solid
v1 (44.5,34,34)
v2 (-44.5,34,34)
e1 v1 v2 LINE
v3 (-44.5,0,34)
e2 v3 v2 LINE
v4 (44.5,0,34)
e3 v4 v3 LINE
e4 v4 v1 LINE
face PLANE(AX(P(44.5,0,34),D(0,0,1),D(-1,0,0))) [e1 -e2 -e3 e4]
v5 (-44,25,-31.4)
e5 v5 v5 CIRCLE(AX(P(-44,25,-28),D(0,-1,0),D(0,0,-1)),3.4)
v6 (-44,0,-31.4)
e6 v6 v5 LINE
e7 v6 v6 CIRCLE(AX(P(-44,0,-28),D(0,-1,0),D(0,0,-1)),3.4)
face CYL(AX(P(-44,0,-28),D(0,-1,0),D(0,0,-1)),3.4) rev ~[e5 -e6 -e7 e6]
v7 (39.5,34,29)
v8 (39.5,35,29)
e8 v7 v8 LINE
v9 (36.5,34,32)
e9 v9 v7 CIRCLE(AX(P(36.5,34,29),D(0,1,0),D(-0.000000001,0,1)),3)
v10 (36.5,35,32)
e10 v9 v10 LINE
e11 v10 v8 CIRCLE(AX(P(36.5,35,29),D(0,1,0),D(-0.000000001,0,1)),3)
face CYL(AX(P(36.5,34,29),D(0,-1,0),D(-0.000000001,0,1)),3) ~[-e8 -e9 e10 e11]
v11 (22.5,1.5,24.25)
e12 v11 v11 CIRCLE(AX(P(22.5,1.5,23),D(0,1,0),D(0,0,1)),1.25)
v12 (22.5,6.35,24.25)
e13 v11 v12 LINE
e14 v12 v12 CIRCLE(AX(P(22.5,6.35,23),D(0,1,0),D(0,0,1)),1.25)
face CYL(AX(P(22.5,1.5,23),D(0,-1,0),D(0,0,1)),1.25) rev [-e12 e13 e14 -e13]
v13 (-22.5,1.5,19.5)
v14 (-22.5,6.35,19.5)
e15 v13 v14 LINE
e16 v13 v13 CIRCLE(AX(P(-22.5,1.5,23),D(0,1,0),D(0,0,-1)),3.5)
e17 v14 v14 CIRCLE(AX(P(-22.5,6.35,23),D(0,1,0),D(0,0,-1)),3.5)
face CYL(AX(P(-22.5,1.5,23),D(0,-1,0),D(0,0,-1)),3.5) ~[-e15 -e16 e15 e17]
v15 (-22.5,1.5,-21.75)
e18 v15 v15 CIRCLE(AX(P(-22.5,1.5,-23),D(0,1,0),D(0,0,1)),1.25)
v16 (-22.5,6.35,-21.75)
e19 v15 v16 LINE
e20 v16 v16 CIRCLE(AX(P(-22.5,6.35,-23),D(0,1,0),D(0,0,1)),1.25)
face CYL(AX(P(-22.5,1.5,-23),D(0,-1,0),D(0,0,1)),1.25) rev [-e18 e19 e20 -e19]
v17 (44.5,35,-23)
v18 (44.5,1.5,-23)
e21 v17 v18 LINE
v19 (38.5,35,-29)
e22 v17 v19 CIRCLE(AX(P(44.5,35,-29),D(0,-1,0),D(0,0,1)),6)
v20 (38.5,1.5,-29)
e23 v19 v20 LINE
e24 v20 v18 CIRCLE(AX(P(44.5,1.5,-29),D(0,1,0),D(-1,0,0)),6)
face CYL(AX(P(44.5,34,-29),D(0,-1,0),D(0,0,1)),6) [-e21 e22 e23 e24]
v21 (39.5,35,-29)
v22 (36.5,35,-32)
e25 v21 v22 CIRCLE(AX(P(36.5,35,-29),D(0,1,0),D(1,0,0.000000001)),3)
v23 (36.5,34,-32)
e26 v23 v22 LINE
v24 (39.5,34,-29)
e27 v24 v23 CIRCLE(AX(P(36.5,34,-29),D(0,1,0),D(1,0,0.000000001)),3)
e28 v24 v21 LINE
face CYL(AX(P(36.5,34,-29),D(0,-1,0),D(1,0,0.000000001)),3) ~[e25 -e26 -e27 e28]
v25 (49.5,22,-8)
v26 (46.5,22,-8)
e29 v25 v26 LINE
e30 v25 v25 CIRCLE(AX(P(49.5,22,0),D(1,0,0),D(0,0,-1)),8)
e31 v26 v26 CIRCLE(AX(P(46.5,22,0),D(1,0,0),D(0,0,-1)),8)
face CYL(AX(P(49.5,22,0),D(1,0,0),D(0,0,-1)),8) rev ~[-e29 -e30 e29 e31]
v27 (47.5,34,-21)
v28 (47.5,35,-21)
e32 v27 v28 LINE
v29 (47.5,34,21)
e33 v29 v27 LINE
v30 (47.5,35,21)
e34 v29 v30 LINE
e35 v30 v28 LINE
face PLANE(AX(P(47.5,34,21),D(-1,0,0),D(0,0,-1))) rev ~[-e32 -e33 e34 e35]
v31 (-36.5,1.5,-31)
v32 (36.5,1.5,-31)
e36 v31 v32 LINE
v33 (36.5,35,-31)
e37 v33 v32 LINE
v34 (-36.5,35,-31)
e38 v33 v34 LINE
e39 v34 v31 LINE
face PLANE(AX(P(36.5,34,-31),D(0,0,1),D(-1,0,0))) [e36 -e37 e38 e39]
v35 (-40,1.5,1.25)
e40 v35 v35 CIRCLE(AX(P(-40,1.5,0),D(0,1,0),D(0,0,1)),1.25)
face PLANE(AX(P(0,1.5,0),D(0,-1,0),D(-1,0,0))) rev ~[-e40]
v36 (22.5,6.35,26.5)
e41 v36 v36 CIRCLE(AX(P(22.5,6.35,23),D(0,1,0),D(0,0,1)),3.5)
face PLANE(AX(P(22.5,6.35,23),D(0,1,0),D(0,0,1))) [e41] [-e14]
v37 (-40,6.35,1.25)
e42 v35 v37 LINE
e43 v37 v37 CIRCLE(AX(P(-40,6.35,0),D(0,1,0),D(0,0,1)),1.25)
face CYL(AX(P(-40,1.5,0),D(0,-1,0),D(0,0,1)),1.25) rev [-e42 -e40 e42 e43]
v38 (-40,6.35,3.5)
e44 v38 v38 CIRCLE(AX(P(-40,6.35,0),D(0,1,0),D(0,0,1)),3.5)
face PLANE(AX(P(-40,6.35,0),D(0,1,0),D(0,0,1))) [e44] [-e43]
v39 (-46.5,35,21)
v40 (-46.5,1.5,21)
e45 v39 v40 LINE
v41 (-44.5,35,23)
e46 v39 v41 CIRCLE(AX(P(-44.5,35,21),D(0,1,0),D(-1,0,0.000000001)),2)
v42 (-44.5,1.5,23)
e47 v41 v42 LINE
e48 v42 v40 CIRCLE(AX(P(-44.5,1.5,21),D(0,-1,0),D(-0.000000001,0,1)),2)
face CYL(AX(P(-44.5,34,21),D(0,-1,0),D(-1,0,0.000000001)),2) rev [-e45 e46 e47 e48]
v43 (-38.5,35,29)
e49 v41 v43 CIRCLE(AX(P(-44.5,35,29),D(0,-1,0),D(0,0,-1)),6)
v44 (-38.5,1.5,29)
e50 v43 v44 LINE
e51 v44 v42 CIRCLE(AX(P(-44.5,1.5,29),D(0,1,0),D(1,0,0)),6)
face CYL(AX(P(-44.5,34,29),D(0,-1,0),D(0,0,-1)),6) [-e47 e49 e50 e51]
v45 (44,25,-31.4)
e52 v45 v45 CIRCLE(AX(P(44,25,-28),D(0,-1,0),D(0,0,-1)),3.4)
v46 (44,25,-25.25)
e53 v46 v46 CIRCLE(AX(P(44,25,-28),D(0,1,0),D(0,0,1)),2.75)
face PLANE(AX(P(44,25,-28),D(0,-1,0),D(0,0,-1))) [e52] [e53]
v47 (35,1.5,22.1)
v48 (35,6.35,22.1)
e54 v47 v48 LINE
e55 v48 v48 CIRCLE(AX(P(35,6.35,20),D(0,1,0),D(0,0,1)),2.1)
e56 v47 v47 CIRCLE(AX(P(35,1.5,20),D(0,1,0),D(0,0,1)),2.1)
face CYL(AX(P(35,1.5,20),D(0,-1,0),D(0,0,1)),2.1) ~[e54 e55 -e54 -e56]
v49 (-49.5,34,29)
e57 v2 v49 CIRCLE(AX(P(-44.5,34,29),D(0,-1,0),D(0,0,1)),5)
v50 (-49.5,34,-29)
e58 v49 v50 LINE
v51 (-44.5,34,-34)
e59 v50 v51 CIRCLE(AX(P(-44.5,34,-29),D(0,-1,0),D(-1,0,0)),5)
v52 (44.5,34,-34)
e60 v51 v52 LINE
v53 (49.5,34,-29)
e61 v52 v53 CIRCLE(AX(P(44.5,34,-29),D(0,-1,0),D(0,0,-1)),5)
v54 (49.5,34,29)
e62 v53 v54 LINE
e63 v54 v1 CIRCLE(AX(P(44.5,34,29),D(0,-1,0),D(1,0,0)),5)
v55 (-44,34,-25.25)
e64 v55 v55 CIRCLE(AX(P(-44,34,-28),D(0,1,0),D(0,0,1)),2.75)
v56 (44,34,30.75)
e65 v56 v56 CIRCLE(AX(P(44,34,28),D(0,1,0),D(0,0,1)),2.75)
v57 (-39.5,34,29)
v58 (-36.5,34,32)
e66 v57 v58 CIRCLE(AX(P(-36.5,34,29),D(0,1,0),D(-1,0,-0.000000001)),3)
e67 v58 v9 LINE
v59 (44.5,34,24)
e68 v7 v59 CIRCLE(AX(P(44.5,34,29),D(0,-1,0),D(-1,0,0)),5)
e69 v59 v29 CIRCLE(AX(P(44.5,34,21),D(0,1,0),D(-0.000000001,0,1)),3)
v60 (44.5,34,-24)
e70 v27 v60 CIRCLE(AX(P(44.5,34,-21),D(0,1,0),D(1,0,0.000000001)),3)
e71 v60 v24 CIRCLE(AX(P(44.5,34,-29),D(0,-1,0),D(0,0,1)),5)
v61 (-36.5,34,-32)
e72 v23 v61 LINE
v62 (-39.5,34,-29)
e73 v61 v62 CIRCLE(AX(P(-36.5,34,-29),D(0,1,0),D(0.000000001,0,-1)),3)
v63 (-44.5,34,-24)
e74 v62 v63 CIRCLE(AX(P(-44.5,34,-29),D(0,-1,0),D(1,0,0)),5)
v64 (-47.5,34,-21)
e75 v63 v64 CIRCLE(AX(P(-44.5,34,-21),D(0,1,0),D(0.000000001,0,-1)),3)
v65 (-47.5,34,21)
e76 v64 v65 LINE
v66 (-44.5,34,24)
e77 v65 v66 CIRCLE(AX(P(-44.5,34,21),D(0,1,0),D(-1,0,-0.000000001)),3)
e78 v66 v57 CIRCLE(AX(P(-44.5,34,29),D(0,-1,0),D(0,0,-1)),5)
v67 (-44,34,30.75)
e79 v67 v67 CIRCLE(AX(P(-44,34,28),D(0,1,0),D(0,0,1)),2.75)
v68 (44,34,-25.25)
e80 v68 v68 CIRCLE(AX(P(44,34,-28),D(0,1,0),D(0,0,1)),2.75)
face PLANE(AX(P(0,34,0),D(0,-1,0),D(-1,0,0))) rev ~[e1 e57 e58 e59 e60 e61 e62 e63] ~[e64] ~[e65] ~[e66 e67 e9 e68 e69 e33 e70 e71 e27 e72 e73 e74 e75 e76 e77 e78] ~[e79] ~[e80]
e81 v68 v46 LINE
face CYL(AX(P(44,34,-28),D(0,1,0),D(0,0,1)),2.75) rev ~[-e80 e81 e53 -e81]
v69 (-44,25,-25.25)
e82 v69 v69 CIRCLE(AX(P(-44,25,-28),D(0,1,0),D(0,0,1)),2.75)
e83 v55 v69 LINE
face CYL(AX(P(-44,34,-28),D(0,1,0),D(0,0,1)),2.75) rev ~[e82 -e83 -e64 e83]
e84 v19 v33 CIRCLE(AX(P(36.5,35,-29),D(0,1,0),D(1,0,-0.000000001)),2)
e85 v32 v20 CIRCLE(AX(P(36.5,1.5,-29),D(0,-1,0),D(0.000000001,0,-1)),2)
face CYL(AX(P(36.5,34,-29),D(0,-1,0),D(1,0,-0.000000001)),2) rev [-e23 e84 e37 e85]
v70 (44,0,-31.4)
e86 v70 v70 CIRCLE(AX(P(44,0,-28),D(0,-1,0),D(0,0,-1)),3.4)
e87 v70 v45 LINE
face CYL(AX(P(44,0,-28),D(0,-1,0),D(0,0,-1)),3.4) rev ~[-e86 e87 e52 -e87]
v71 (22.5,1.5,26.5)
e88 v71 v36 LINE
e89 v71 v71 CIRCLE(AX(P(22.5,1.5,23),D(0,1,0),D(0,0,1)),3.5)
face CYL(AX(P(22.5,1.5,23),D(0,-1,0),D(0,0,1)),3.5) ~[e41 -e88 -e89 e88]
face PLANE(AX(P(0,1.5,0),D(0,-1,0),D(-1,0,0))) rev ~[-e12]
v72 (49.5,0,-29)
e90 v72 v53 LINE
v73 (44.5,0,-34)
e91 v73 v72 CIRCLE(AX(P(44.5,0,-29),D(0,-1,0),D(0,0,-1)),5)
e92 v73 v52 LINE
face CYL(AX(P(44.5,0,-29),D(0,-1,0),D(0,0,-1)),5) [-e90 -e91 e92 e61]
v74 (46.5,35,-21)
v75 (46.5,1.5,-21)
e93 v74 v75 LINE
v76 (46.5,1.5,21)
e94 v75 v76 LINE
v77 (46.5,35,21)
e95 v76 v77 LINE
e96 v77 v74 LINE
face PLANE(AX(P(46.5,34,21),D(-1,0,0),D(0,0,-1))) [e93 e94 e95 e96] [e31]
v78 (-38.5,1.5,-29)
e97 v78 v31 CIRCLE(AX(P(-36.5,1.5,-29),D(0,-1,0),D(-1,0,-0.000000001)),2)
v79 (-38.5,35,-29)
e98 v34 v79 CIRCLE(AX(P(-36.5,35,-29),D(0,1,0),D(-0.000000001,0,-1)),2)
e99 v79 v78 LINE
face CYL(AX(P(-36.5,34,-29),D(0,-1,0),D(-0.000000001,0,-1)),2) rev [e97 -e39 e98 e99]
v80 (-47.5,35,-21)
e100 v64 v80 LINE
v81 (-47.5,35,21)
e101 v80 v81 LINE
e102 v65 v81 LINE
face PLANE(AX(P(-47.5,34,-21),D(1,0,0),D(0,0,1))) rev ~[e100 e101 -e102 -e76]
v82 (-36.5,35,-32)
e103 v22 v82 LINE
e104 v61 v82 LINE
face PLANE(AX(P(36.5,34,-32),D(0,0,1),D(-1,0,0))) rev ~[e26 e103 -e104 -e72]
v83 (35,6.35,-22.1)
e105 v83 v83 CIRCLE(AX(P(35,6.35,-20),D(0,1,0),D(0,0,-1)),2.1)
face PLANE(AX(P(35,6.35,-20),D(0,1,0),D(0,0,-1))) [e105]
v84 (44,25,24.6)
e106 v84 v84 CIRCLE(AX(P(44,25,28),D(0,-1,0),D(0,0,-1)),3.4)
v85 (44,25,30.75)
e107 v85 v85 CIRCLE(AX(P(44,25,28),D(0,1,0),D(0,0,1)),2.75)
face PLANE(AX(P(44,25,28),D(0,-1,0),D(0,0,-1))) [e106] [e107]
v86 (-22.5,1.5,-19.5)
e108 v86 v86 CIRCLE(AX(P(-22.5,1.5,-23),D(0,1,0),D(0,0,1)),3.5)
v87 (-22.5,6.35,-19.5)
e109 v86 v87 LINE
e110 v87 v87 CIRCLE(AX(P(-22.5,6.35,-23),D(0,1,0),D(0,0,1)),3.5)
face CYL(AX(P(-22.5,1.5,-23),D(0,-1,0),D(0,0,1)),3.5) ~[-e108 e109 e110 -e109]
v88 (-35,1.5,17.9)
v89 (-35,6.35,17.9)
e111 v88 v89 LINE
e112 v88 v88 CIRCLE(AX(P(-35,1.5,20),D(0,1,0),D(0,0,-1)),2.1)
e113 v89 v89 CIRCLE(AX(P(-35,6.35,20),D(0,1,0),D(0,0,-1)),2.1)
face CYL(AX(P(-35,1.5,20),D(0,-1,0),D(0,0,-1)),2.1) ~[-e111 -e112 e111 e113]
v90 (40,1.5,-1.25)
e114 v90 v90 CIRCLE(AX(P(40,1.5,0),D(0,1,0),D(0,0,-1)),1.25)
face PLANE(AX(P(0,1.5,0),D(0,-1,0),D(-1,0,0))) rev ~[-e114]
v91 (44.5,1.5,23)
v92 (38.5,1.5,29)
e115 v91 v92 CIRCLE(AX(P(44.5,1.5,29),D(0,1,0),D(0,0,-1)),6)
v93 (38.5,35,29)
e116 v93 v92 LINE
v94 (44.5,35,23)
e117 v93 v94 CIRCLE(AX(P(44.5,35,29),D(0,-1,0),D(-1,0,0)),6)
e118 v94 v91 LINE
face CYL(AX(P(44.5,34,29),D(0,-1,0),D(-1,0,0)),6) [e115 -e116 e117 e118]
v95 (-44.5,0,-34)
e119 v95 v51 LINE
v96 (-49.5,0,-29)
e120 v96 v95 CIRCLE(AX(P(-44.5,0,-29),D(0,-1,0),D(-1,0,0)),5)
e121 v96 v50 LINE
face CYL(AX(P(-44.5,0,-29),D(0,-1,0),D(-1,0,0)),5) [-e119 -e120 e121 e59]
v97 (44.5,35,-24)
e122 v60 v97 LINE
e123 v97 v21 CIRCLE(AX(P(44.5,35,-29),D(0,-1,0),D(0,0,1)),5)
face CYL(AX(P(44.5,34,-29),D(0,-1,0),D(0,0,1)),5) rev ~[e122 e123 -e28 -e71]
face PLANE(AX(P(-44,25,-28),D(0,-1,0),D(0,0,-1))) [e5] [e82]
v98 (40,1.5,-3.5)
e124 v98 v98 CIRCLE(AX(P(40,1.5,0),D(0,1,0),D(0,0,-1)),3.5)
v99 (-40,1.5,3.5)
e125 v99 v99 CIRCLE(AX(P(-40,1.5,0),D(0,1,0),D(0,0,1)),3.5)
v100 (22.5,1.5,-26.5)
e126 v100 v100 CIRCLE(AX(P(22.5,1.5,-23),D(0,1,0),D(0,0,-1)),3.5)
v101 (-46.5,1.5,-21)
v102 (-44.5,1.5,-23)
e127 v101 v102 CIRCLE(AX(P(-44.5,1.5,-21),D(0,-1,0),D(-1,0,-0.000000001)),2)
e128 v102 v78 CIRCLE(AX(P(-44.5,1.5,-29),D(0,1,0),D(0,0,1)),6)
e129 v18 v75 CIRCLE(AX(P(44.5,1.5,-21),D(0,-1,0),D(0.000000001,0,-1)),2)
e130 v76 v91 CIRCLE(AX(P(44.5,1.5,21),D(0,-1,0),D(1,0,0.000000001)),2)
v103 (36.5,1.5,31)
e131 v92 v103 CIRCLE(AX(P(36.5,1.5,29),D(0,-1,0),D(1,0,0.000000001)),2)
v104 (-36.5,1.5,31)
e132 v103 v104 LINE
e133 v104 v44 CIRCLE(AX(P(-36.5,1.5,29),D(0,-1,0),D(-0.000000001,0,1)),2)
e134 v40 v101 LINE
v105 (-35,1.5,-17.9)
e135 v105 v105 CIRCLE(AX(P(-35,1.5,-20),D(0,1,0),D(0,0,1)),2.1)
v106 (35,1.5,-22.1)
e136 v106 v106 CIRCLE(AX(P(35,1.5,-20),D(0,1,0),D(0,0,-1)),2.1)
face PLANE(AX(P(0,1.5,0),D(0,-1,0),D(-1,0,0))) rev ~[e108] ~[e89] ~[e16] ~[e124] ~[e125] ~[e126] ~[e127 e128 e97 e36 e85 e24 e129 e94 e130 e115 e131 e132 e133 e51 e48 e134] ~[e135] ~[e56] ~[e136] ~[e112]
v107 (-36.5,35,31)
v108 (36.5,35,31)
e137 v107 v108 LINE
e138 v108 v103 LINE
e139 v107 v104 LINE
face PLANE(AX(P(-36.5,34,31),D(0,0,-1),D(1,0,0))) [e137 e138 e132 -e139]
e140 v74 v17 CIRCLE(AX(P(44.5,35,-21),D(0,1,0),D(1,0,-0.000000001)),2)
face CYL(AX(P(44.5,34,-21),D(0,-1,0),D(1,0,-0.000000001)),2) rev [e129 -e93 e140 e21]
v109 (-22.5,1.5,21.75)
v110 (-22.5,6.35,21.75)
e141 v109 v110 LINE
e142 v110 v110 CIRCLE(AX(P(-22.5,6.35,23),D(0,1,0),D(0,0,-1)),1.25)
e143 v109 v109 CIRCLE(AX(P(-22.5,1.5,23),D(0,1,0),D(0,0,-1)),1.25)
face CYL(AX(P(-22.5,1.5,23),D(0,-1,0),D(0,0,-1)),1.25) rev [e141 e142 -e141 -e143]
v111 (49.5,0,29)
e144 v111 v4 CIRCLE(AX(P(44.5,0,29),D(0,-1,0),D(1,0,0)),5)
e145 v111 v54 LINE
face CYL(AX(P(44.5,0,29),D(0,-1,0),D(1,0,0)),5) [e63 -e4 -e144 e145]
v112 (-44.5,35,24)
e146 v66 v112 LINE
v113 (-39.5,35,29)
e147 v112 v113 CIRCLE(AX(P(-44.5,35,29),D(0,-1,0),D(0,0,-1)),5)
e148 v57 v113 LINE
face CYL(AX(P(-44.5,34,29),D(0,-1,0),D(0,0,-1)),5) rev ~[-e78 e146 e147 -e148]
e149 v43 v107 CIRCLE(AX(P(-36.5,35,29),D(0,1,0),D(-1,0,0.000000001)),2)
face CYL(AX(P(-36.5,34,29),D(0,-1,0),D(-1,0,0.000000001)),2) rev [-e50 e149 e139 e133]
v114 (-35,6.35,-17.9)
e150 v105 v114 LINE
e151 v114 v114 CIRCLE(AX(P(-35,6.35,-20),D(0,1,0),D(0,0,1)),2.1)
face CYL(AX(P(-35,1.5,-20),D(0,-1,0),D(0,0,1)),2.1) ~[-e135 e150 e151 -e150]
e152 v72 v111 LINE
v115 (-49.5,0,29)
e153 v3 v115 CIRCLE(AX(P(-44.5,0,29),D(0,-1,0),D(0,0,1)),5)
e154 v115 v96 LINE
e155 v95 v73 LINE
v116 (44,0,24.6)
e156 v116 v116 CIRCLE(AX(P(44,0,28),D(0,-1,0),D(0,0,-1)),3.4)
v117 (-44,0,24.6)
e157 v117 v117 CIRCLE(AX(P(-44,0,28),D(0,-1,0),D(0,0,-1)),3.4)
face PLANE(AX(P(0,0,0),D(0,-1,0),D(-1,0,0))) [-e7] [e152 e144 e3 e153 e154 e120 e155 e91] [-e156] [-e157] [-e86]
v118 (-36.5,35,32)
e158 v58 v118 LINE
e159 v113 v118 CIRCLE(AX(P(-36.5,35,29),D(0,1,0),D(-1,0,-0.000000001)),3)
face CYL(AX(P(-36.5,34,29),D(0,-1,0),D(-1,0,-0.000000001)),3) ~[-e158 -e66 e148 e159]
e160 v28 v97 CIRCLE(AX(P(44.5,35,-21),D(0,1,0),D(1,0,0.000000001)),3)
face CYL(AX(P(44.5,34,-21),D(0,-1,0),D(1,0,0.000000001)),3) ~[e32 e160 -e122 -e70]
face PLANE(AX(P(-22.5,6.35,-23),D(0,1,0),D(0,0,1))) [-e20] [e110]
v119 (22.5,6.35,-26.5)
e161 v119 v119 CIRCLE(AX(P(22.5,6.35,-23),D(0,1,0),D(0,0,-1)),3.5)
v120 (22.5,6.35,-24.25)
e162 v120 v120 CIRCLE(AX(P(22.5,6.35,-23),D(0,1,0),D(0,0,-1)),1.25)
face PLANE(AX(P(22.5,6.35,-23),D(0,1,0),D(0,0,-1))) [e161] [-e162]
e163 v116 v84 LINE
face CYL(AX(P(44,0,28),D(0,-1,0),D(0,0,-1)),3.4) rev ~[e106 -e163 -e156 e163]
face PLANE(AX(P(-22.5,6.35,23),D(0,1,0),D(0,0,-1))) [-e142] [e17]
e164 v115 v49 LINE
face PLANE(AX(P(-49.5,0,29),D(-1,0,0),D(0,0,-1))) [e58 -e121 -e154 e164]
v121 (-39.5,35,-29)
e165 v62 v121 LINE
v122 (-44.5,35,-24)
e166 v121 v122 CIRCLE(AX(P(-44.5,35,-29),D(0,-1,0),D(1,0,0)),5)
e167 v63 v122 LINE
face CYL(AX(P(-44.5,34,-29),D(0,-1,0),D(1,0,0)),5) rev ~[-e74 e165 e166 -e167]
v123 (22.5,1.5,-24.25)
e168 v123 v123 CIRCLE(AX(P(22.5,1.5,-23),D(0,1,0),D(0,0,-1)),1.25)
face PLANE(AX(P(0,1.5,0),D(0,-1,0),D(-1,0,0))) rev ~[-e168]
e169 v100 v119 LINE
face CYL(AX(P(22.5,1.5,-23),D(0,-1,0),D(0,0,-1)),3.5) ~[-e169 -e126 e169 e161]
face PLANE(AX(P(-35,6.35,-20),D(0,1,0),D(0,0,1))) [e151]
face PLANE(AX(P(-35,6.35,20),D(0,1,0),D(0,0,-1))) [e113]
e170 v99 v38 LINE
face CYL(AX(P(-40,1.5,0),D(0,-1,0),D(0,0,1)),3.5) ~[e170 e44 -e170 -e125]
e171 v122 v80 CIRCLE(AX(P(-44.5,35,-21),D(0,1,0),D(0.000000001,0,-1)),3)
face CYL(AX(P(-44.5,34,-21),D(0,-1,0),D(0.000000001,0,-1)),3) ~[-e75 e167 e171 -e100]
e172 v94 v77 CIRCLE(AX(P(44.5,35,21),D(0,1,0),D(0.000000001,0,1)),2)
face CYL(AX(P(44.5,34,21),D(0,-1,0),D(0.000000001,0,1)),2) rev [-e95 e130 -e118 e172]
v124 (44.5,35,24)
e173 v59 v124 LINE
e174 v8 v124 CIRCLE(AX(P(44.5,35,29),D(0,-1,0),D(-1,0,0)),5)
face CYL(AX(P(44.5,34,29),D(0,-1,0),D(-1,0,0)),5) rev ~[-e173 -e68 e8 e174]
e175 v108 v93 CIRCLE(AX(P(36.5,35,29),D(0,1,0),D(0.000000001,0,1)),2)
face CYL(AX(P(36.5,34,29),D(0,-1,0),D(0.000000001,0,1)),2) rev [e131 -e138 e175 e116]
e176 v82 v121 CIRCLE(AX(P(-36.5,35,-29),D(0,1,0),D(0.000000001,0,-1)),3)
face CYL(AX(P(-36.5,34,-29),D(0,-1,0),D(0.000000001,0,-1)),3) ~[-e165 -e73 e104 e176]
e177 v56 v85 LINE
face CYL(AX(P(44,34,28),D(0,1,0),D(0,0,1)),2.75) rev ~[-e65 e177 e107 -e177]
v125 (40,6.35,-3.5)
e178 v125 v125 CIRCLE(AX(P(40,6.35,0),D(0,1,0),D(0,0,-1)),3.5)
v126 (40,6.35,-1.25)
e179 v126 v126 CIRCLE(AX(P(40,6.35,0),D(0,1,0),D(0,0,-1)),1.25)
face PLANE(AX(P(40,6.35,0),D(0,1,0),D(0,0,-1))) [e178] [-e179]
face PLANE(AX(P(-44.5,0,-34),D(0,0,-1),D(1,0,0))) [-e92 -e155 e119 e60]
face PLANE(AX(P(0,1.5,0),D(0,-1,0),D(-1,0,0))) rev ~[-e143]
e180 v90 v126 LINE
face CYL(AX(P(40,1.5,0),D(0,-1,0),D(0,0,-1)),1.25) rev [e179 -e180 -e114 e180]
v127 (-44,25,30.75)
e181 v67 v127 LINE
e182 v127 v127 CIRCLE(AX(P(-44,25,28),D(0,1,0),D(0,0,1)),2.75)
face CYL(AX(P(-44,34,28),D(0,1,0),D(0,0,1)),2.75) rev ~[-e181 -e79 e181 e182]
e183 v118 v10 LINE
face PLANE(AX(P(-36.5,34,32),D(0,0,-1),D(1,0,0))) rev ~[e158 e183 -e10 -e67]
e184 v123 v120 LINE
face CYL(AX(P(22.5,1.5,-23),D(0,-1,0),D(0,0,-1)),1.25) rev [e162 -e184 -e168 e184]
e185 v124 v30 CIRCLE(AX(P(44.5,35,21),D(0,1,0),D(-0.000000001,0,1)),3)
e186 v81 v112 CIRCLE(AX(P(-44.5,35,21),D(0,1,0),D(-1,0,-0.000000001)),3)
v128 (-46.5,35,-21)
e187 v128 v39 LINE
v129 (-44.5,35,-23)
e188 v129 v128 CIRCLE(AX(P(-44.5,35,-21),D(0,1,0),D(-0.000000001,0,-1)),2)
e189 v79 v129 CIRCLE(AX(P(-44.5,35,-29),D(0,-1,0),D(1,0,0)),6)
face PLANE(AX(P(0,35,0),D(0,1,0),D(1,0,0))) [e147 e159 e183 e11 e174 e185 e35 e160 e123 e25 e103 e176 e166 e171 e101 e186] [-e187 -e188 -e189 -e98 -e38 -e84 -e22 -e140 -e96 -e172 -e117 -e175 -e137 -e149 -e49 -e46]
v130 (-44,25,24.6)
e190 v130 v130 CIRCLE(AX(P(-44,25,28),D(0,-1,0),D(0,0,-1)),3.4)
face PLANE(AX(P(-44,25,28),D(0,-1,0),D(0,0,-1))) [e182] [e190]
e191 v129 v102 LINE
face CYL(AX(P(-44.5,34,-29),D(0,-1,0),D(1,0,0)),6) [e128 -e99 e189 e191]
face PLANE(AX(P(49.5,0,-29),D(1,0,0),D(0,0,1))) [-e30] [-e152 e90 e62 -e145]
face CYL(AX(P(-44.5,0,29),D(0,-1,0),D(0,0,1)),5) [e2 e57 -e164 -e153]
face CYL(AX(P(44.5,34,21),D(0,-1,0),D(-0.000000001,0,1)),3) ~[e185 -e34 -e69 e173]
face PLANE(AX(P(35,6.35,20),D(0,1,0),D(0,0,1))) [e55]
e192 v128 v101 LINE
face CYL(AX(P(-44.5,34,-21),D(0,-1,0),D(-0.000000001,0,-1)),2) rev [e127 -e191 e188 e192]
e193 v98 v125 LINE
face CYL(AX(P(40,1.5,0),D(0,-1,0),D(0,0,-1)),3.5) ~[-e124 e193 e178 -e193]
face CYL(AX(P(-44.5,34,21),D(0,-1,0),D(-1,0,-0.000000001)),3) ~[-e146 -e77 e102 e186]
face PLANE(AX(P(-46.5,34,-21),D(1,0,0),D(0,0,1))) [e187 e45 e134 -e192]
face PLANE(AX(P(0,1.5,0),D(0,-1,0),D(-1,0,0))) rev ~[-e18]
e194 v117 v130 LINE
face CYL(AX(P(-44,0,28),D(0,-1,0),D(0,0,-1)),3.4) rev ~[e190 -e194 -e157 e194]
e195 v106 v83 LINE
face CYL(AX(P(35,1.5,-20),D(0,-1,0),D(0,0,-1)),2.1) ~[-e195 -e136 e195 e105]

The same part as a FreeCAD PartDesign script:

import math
import FreeCAD as App
import Part
import Sketcher
from FreeCAD import Vector
Q = App.Units.Quantity

doc = App.newDocument("Part")
params = doc.addObject("Spreadsheet::Sheet", "Params")
for row, (alias, value) in enumerate([
    ("sketch1_radius", "5 mm"),
    ("sketch1_width", "89 mm"),
    ("sketch1_height", "58 mm"),
    ("pad1_length", "34 mm"),
    ("sketch2_radius", "2 mm"),
    ("sketch2_radius2", "6 mm"),
    ("sketch2_width", "73 mm"),
    ("sketch2_height", "42 mm"),
    ("pocket1_length", "32.5 mm"),
    ("sketch3_diameter", "5.5 mm"),
    ("sketch4_diameter", "5.5 mm"),
    ("sketch5_diameter", "5.5 mm"),
    ("sketch6_diameter", "5.5 mm"),
    ("sketch7_radius", "3 mm"),
    ("sketch7_radius2", "5 mm"),
    ("sketch7_radius3", "2 mm"),
    ("sketch7_width", "73 mm"),
    ("sketch7_height", "42 mm"),
    ("pad2_length", "1 mm"),
    ("sketch8_diameter", "6.8 mm"),
    ("pocket6_length", "25 mm"),
    ("sketch9_diameter", "7 mm"),
    ("sketch9_diameter2", "2.5 mm"),
    ("sketch9_diameter3", "4.2 mm"),
    ("pad3_length", "4.85 mm"),
    ("sketch10_diameter", "16 mm"),
], start=1):
    params.set(f"A{row}", alias)
    params.set(f"B{row}", "=" + value)
    params.setAlias(f"B{row}", alias)

body = doc.addObject("PartDesign::Body", "Body")

# Sketch on XZ plane
sketch1 = body.newObject("Sketcher::SketchObject", "Sketch")
sketch1.AttachmentSupport = (doc.getObject("XZ_Plane"), [""])
sketch1.MapMode = "FlatFace"
sketch1.addGeometry([
    Part.LineSegment(Vector(44, -34, 0), Vector(-44, -34, 0)),  # 0
    Part.ArcOfCircle(Part.Circle(Vector(-44, -29, 0), Vector(0, 0, 1), 5), math.radians(180), math.radians(270)),  # 1
    Part.LineSegment(Vector(-50, -29, 0), Vector(-50, 29, 0)),  # 2
    Part.ArcOfCircle(Part.Circle(Vector(-44, 29, 0), Vector(0, 0, 1), 5), math.radians(90), math.radians(180)),  # 3
    Part.LineSegment(Vector(-44, 34, 0), Vector(44, 34, 0)),  # 4
    Part.ArcOfCircle(Part.Circle(Vector(44, 29, 0), Vector(0, 0, 1), 5), math.radians(0), math.radians(90)),  # 5
    Part.LineSegment(Vector(50, 29, 0), Vector(50, -29, 0)),  # 6
    Part.ArcOfCircle(Part.Circle(Vector(44, -29, 0), Vector(0, 0, 1), 5), math.radians(-90), math.radians(0)),  # 7
], False)
sketch1.addConstraint([
    Sketcher.Constraint("Tangent", 0, 2, 1, 2),
    Sketcher.Constraint("Tangent", 1, 1, 2, 1),
    Sketcher.Constraint("Tangent", 2, 2, 3, 2),
    Sketcher.Constraint("Tangent", 3, 1, 4, 1),
    Sketcher.Constraint("Tangent", 4, 2, 5, 2),
    Sketcher.Constraint("Tangent", 5, 1, 6, 1),
    Sketcher.Constraint("Tangent", 6, 2, 7, 2),
    Sketcher.Constraint("Tangent", 7, 1, 0, 1),
    Sketcher.Constraint("Horizontal", 0),
    Sketcher.Constraint("Vertical", 2),
    Sketcher.Constraint("Horizontal", 4),
    Sketcher.Constraint("Vertical", 6),
    Sketcher.Constraint("Equal", 1, 3),
    Sketcher.Constraint("Equal", 3, 5),
    Sketcher.Constraint("Equal", 5, 7),
    Sketcher.Constraint("Symmetric", 1, 3, 5, 3, -1, 1),
    Sketcher.Constraint("Radius", 1, Q("5 mm")),
    Sketcher.Constraint("DistanceX", 0, 2, 0, 1, Q("89 mm")),
    Sketcher.Constraint("DistanceY", 2, 1, 2, 2, Q("58 mm")),
])
sketch1.setExpression("Constraints[16]", "Params.sketch1_radius")
sketch1.setExpression("Constraints[17]", "Params.sketch1_width")
sketch1.setExpression("Constraints[18]", "Params.sketch1_height")
pad1 = body.newObject("PartDesign::Pad", "Pad")
pad1.Profile = sketch1
pad1.setExpression("Length", "Params.pad1_length")
pad1.Reversed = True

# Sketch on XZ plane
sketch2 = body.newObject("Sketcher::SketchObject", "Sketch001")
sketch2.AttachmentSupport = (doc.getObject("XZ_Plane"), [""])
sketch2.MapMode = "FlatFace"
sketch2.AttachmentOffset = App.Placement(Vector(0, 0, -34), App.Rotation())
sketch2.addGeometry([
    Part.LineSegment(Vector(36.5, -31, 0), Vector(-36.5, -31, 0)),  # 0
    Part.ArcOfCircle(Part.Circle(Vector(-36.5, -29, 0), Vector(0, 0, 1), 2), math.radians(-180), math.radians(-90)),  # 1
    Part.ArcOfCircle(Part.Circle(Vector(-44.5, -29, 0), Vector(0, 0, 1), 6), math.radians(0), math.radians(90)),  # 2
    Part.ArcOfCircle(Part.Circle(Vector(-44.5, -21, 0), Vector(0, 0, 1), 2), math.radians(-180), math.radians(-90)),  # 3
    Part.LineSegment(Vector(-46.5, -21, 0), Vector(-46.5, 21, 0)),  # 4
    Part.ArcOfCircle(Part.Circle(Vector(-44.5, 21, 0), Vector(0, 0, 1), 2), math.radians(90), math.radians(180)),  # 5
    Part.ArcOfCircle(Part.Circle(Vector(-44.5, 29, 0), Vector(0, 0, 1), 6), math.radians(-90), math.radians(0)),  # 6
    Part.ArcOfCircle(Part.Circle(Vector(-36.5, 29, 0), Vector(0, 0, 1), 2), math.radians(90), math.radians(180)),  # 7
    Part.LineSegment(Vector(-36.5, 31, 0), Vector(36.5, 31, 0)),  # 8
    Part.ArcOfCircle(Part.Circle(Vector(36.5, 29, 0), Vector(0, 0, 1), 2), math.radians(0), math.radians(90)),  # 9
    Part.ArcOfCircle(Part.Circle(Vector(44.5, 29, 0), Vector(0, 0, 1), 6), math.radians(180), math.radians(270)),  # 10
    Part.ArcOfCircle(Part.Circle(Vector(44.5, 21, 0), Vector(0, 0, 1), 2), math.radians(0), math.radians(90)),  # 11
    Part.LineSegment(Vector(46.5, 21, 0), Vector(46.5, -21, 0)),  # 12
    Part.ArcOfCircle(Part.Circle(Vector(44.5, -21, 0), Vector(0, 0, 1), 2), math.radians(-90), math.radians(0)),  # 13
    Part.ArcOfCircle(Part.Circle(Vector(44.5, -29, 0), Vector(0, 0, 1), 6), math.radians(90), math.radians(180)),  # 14
    Part.ArcOfCircle(Part.Circle(Vector(36.5, -29, 0), Vector(0, 0, 1), 2), math.radians(-90), math.radians(0)),  # 15
], False)
sketch2.addConstraint([
    Sketcher.Constraint("Tangent", 0, 2, 1, 2),
    Sketcher.Constraint("Tangent", 1, 1, 2, 1),
    Sketcher.Constraint("Tangent", 2, 2, 3, 2),
    Sketcher.Constraint("Tangent", 3, 1, 4, 1),
    Sketcher.Constraint("Tangent", 4, 2, 5, 2),
    Sketcher.Constraint("Tangent", 5, 1, 6, 1),
    Sketcher.Constraint("Tangent", 6, 2, 7, 2),
    Sketcher.Constraint("Tangent", 7, 1, 8, 1),
    Sketcher.Constraint("Tangent", 8, 2, 9, 2),
    Sketcher.Constraint("Tangent", 9, 1, 10, 1),
    Sketcher.Constraint("Tangent", 10, 2, 11, 2),
    Sketcher.Constraint("Tangent", 11, 1, 12, 1),
    Sketcher.Constraint("Tangent", 12, 2, 13, 2),
    Sketcher.Constraint("Tangent", 13, 1, 14, 1),
    Sketcher.Constraint("Tangent", 14, 2, 15, 2),
    Sketcher.Constraint("Tangent", 15, 1, 0, 1),
    Sketcher.Constraint("Horizontal", 0),
    Sketcher.Constraint("Vertical", 4),
    Sketcher.Constraint("Horizontal", 8),
    Sketcher.Constraint("Vertical", 12),
    Sketcher.Constraint("Equal", 1, 3),
    Sketcher.Constraint("Equal", 3, 5),
    Sketcher.Constraint("Equal", 2, 6),
    Sketcher.Constraint("Equal", 5, 7),
    Sketcher.Constraint("Equal", 7, 9),
    Sketcher.Constraint("Equal", 6, 10),
    Sketcher.Constraint("Equal", 9, 11),
    Sketcher.Constraint("Equal", 11, 13),
    Sketcher.Constraint("Equal", 10, 14),
    Sketcher.Constraint("Equal", 13, 15),
    Sketcher.Constraint("Symmetric", 1, 3, 9, 3, -1, 1),
    Sketcher.Constraint("Symmetric", 3, 3, 11, 3, -1, 1),
    Sketcher.Constraint("Symmetric", 6, 3, 14, 3, -1, 1),
    Sketcher.Constraint("Symmetric", 6, 3, 10, 3, -2),
    Sketcher.Constraint("Horizontal", 1, 3, 2, 3),
    Sketcher.Constraint("Vertical", 2, 3, 3, 3),
    Sketcher.Constraint("Radius", 1, Q("2 mm")),
    Sketcher.Constraint("Radius", 2, Q("6 mm")),
    Sketcher.Constraint("DistanceX", 0, 2, 0, 1, Q("73 mm")),
    Sketcher.Constraint("DistanceY", 4, 1, 4, 2, Q("42 mm")),
])
sketch2.setExpression("Constraints[36]", "Params.sketch2_radius")
sketch2.setExpression("Constraints[37]", "Params.sketch2_radius2")
sketch2.setExpression("Constraints[38]", "Params.sketch2_width")
sketch2.setExpression("Constraints[39]", "Params.sketch2_height")
pocket1 = body.newObject("PartDesign::Pocket", "Pocket")
pocket1.Profile = sketch2
pocket1.setExpression("Length", "Params.pocket1_length")
pocket1.Reversed = True

# Sketch on XZ plane
sketch3 = body.newObject("Sketcher::SketchObject", "Sketch002")
sketch3.AttachmentSupport = (doc.getObject("XZ_Plane"), [""])
sketch3.MapMode = "FlatFace"
sketch3.AttachmentOffset = App.Placement(Vector(0, 0, -34), App.Rotation())
sketch3.addGeometry(Part.Circle(Vector(-44, -28, 0), Vector(0, 0, 1), 2.8), False)
sketch3.addConstraint([
    Sketcher.Constraint("Diameter", 0, Q("5.5 mm")),
    Sketcher.Constraint("DistanceX", 0, 3, -1, 1, Q("44 mm")),
    Sketcher.Constraint("DistanceY", 0, 3, -1, 1, Q("28 mm")),
])
sketch3.setExpression("Constraints[0]", "Params.sketch3_diameter")
pocket2 = body.newObject("PartDesign::Pocket", "Pocket001")
pocket2.Profile = sketch3
pocket2.Type = "UpToFirst"
pocket2.Reversed = True

# Sketch on XZ plane
sketch4 = body.newObject("Sketcher::SketchObject", "Sketch003")
sketch4.AttachmentSupport = (doc.getObject("XZ_Plane"), [""])
sketch4.MapMode = "FlatFace"
sketch4.AttachmentOffset = App.Placement(Vector(0, 0, -34), App.Rotation())
sketch4.addGeometry(Part.Circle(Vector(-44, 28, 0), Vector(0, 0, 1), 2.8), False)
sketch4.addConstraint([
    Sketcher.Constraint("Diameter", 0, Q("5.5 mm")),
    Sketcher.Constraint("DistanceX", 0, 3, -1, 1, Q("44 mm")),
    Sketcher.Constraint("DistanceY", -1, 1, 0, 3, Q("28 mm")),
])
sketch4.setExpression("Constraints[0]", "Params.sketch4_diameter")
pocket3 = body.newObject("PartDesign::Pocket", "Pocket002")
pocket3.Profile = sketch4
pocket3.Type = "UpToFirst"
pocket3.Reversed = True

# Sketch on XZ plane
sketch5 = body.newObject("Sketcher::SketchObject", "Sketch004")
sketch5.AttachmentSupport = (doc.getObject("XZ_Plane"), [""])
sketch5.MapMode = "FlatFace"
sketch5.AttachmentOffset = App.Placement(Vector(0, 0, -34), App.Rotation())
sketch5.addGeometry(Part.Circle(Vector(44, 28, 0), Vector(0, 0, 1), 2.8), False)
sketch5.addConstraint([
    Sketcher.Constraint("Diameter", 0, Q("5.5 mm")),
    Sketcher.Constraint("DistanceX", -1, 1, 0, 3, Q("44 mm")),
    Sketcher.Constraint("DistanceY", -1, 1, 0, 3, Q("28 mm")),
])
sketch5.setExpression("Constraints[0]", "Params.sketch5_diameter")
pocket4 = body.newObject("PartDesign::Pocket", "Pocket003")
pocket4.Profile = sketch5
pocket4.Type = "UpToFirst"
pocket4.Reversed = True

# Sketch on XZ plane
sketch6 = body.newObject("Sketcher::SketchObject", "Sketch005")
sketch6.AttachmentSupport = (doc.getObject("XZ_Plane"), [""])
sketch6.MapMode = "FlatFace"
sketch6.AttachmentOffset = App.Placement(Vector(0, 0, -34), App.Rotation())
sketch6.addGeometry(Part.Circle(Vector(44, -28, 0), Vector(0, 0, 1), 2.8), False)
sketch6.addConstraint([
    Sketcher.Constraint("Diameter", 0, Q("5.5 mm")),
    Sketcher.Constraint("DistanceX", -1, 1, 0, 3, Q("44 mm")),
    Sketcher.Constraint("DistanceY", 0, 3, -1, 1, Q("28 mm")),
])
sketch6.setExpression("Constraints[0]", "Params.sketch6_diameter")
pocket5 = body.newObject("PartDesign::Pocket", "Pocket004")
pocket5.Profile = sketch6
pocket5.Type = "UpToFirst"
pocket5.Reversed = True

# Sketch on XZ plane
sketch7 = body.newObject("Sketcher::SketchObject", "Sketch006")
sketch7.AttachmentSupport = (doc.getObject("XZ_Plane"), [""])
sketch7.MapMode = "FlatFace"
sketch7.AttachmentOffset = App.Placement(Vector(0, 0, -34), App.Rotation())
sketch7.addGeometry([
    Part.LineSegment(Vector(47.5, 21, 0), Vector(47.5, -21, 0)),  # 0
    Part.ArcOfCircle(Part.Circle(Vector(44.5, -21, 0), Vector(0, 0, 1), 3), math.radians(-90), math.radians(0)),  # 1
    Part.ArcOfCircle(Part.Circle(Vector(44.5, -29, 0), Vector(0, 0, 1), 5), math.radians(90), math.radians(180)),  # 2
    Part.ArcOfCircle(Part.Circle(Vector(36.5, -29, 0), Vector(0, 0, 1), 3), math.radians(-90), math.radians(0)),  # 3
    Part.LineSegment(Vector(36.5, -32, 0), Vector(-36.5, -32, 0)),  # 4
    Part.ArcOfCircle(Part.Circle(Vector(-36.5, -29, 0), Vector(0, 0, 1), 3), math.radians(180), math.radians(270)),  # 5
    Part.ArcOfCircle(Part.Circle(Vector(-44.5, -29, 0), Vector(0, 0, 1), 5), math.radians(0), math.radians(90)),  # 6
    Part.ArcOfCircle(Part.Circle(Vector(-44.5, -21, 0), Vector(0, 0, 1), 3), math.radians(180), math.radians(270)),  # 7
    Part.LineSegment(Vector(-47.5, -21, 0), Vector(-47.5, 21, 0)),  # 8
    Part.ArcOfCircle(Part.Circle(Vector(-44.5, 21, 0), Vector(0, 0, 1), 3), math.radians(90), math.radians(180)),  # 9
    Part.ArcOfCircle(Part.Circle(Vector(-44.5, 29, 0), Vector(0, 0, 1), 5), math.radians(-90), math.radians(0)),  # 10
    Part.ArcOfCircle(Part.Circle(Vector(-36.5, 29, 0), Vector(0, 0, 1), 3), math.radians(90), math.radians(180)),  # 11
    Part.LineSegment(Vector(-36.5, 32, 0), Vector(36.5, 32, 0)),  # 12
    Part.ArcOfCircle(Part.Circle(Vector(36.5, 29, 0), Vector(0, 0, 1), 3), math.radians(0), math.radians(90)),  # 13
    Part.ArcOfCircle(Part.Circle(Vector(44.5, 29, 0), Vector(0, 0, 1), 5), math.radians(180), math.radians(270)),  # 14
    Part.ArcOfCircle(Part.Circle(Vector(44.5, 21, 0), Vector(0, 0, 1), 3), math.radians(0), math.radians(90)),  # 15
    Part.LineSegment(Vector(46.5, -21, 0), Vector(46.5, 21, 0)),  # 16
    Part.ArcOfCircle(Part.Circle(Vector(44.5, 21, 0), Vector(0, 0, 1), 2), math.radians(0), math.radians(90)),  # 17
    Part.ArcOfCircle(Part.Circle(Vector(44.5, 29, 0), Vector(0, 0, 1), 6), math.radians(180), math.radians(270)),  # 18
    Part.ArcOfCircle(Part.Circle(Vector(36.5, 29, 0), Vector(0, 0, 1), 2), math.radians(0), math.radians(90)),  # 19
    Part.LineSegment(Vector(36.5, 31, 0), Vector(-36.5, 31, 0)),  # 20
    Part.ArcOfCircle(Part.Circle(Vector(-36.5, 29, 0), Vector(0, 0, 1), 2), math.radians(90), math.radians(180)),  # 21
    Part.ArcOfCircle(Part.Circle(Vector(-44.5, 29, 0), Vector(0, 0, 1), 6), math.radians(-90), math.radians(0)),  # 22
    Part.ArcOfCircle(Part.Circle(Vector(-44.5, 21, 0), Vector(0, 0, 1), 2), math.radians(90), math.radians(180)),  # 23
    Part.LineSegment(Vector(-46.5, 21, 0), Vector(-46.5, -21, 0)),  # 24
    Part.ArcOfCircle(Part.Circle(Vector(-44.5, -21, 0), Vector(0, 0, 1), 2), math.radians(-180), math.radians(-90)),  # 25
    Part.ArcOfCircle(Part.Circle(Vector(-44.5, -29, 0), Vector(0, 0, 1), 6), math.radians(0), math.radians(90)),  # 26
    Part.ArcOfCircle(Part.Circle(Vector(-36.5, -29, 0), Vector(0, 0, 1), 2), math.radians(-180), math.radians(-90)),  # 27
    Part.LineSegment(Vector(-36.5, -31, 0), Vector(36.5, -31, 0)),  # 28
    Part.ArcOfCircle(Part.Circle(Vector(36.5, -29, 0), Vector(0, 0, 1), 2), math.radians(-90), math.radians(0)),  # 29
    Part.ArcOfCircle(Part.Circle(Vector(44.5, -29, 0), Vector(0, 0, 1), 6), math.radians(90), math.radians(180)),  # 30
    Part.ArcOfCircle(Part.Circle(Vector(44.5, -21, 0), Vector(0, 0, 1), 2), math.radians(-90), math.radians(0)),  # 31
], False)
sketch7.addConstraint([
    Sketcher.Constraint("Tangent", 0, 2, 1, 2),
    Sketcher.Constraint("Tangent", 1, 1, 2, 1),
    Sketcher.Constraint("Tangent", 2, 2, 3, 2),
    Sketcher.Constraint("Tangent", 3, 1, 4, 1),
    Sketcher.Constraint("Tangent", 4, 2, 5, 2),
    Sketcher.Constraint("Tangent", 5, 1, 6, 1),
    Sketcher.Constraint("Tangent", 6, 2, 7, 2),
    Sketcher.Constraint("Tangent", 7, 1, 8, 1),
    Sketcher.Constraint("Tangent", 8, 2, 9, 2),
    Sketcher.Constraint("Tangent", 9, 1, 10, 1),
    Sketcher.Constraint("Tangent", 10, 2, 11, 2),
    Sketcher.Constraint("Tangent", 11, 1, 12, 1),
    Sketcher.Constraint("Tangent", 12, 2, 13, 2),
    Sketcher.Constraint("Tangent", 13, 1, 14, 1),
    Sketcher.Constraint("Tangent", 14, 2, 15, 2),
    Sketcher.Constraint("Tangent", 15, 1, 0, 1),
    Sketcher.Constraint("Tangent", 16, 2, 17, 1),
    Sketcher.Constraint("Tangent", 17, 2, 18, 2),
    Sketcher.Constraint("Tangent", 18, 1, 19, 1),
    Sketcher.Constraint("Tangent", 19, 2, 20, 1),
    Sketcher.Constraint("Tangent", 20, 2, 21, 1),
    Sketcher.Constraint("Tangent", 21, 2, 22, 2),
    Sketcher.Constraint("Tangent", 22, 1, 23, 1),
    Sketcher.Constraint("Tangent", 23, 2, 24, 1),
    Sketcher.Constraint("Tangent", 24, 2, 25, 1),
    Sketcher.Constraint("Tangent", 25, 2, 26, 2),
    Sketcher.Constraint("Tangent", 26, 1, 27, 1),
    Sketcher.Constraint("Tangent", 27, 2, 28, 1),
    Sketcher.Constraint("Tangent", 28, 2, 29, 1),
    Sketcher.Constraint("Tangent", 29, 2, 30, 2),
    Sketcher.Constraint("Tangent", 30, 1, 31, 1),
    Sketcher.Constraint("Tangent", 31, 2, 16, 1),
    Sketcher.Constraint("Vertical", 0),
    Sketcher.Constraint("Horizontal", 4),
    Sketcher.Constraint("Vertical", 8),
    Sketcher.Constraint("Horizontal", 12),
    Sketcher.Constraint("Vertical", 16),
    Sketcher.Constraint("Horizontal", 20),
    Sketcher.Constraint("Vertical", 24),
    Sketcher.Constraint("Horizontal", 28),
    Sketcher.Constraint("Coincident", 17, 3, 15, 3),
    Sketcher.Constraint("Coincident", 18, 3, 14, 3),
    Sketcher.Constraint("Coincident", 19, 3, 13, 3),
    Sketcher.Constraint("Coincident", 21, 3, 11, 3),
    Sketcher.Constraint("Coincident", 22, 3, 10, 3),
    Sketcher.Constraint("Coincident", 23, 3, 9, 3),
    Sketcher.Constraint("Coincident", 25, 3, 7, 3),
    Sketcher.Constraint("Coincident", 26, 3, 6, 3),
    Sketcher.Constraint("Coincident", 27, 3, 5, 3),
    Sketcher.Constraint("Coincident", 29, 3, 3, 3),
    Sketcher.Constraint("Coincident", 30, 3, 2, 3),
    Sketcher.Constraint("Equal", 1, 3),
    Sketcher.Constraint("Equal", 3, 5),
    Sketcher.Constraint("Equal", 2, 6),
    Sketcher.Constraint("Equal", 5, 7),
    Sketcher.Constraint("Equal", 7, 9),
    Sketcher.Constraint("Equal", 6, 10),
    Sketcher.Constraint("Equal", 9, 11),
    Sketcher.Constraint("Equal", 11, 13),
    Sketcher.Constraint("Equal", 10, 14),
    Sketcher.Constraint("Equal", 13, 15),
    Sketcher.Constraint("Equal", 29, 31),
    Sketcher.Constraint("Symmetric", 1, 3, 9, 3, -1, 1),
    Sketcher.Constraint("Symmetric", 3, 3, 11, 3, -1, 1),
    Sketcher.Constraint("Symmetric", 6, 3, 14, 3, -1, 1),
    Sketcher.Constraint("Symmetric", 2, 3, 6, 3, -2),
    Sketcher.Constraint("Horizontal", 2, 3, 3, 3),
    Sketcher.Constraint("Vertical", 1, 3, 2, 3),
    Sketcher.Constraint("Radius", 1, Q("3 mm")),
    Sketcher.Constraint("Radius", 2, Q("5 mm")),
    Sketcher.Constraint("Radius", 17, Q("2 mm")),
    Sketcher.Constraint("DistanceX", 4, 2, 4, 1, Q("73 mm")),
    Sketcher.Constraint("DistanceY", 0, 2, 0, 1, Q("42 mm")),
])
sketch7.setExpression("Constraints[68]", "Params.sketch7_radius")
sketch7.setExpression("Constraints[69]", "Params.sketch7_radius2")
sketch7.setExpression("Constraints[70]", "Params.sketch7_radius3")
sketch7.setExpression("Constraints[71]", "Params.sketch7_width")
sketch7.setExpression("Constraints[72]", "Params.sketch7_height")
pad2 = body.newObject("PartDesign::Pad", "Pad001")
pad2.Profile = sketch7
pad2.setExpression("Length", "Params.pad2_length")
pad2.Reversed = True

# Sketch on XZ plane
sketch8 = body.newObject("Sketcher::SketchObject", "Sketch007")
sketch8.AttachmentSupport = (doc.getObject("XZ_Plane"), [""])
sketch8.MapMode = "FlatFace"
sketch8.addGeometry([
    Part.Circle(Vector(-44, 28, 0), Vector(0, 0, 1), 3.4),
    Part.Circle(Vector(44, 28, 0), Vector(0, 0, 1), 3.4),
    Part.Circle(Vector(44, -28, 0), Vector(0, 0, 1), 3.4),
    Part.Circle(Vector(-44, -28, 0), Vector(0, 0, 1), 3.4),
], False)
sketch8.addConstraint([
    Sketcher.Constraint("Equal", 0, 1),
    Sketcher.Constraint("Equal", 1, 2),
    Sketcher.Constraint("Equal", 2, 3),
    Sketcher.Constraint("Symmetric", 0, 3, 2, 3, -1, 1),
    Sketcher.Constraint("Symmetric", 1, 3, 3, 3, -1, 1),
    Sketcher.Constraint("Symmetric", 0, 3, 1, 3, -2),
    Sketcher.Constraint("Diameter", 0, Q("6.8 mm")),
    Sketcher.Constraint("DistanceX", 0, 3, -1, 1, Q("44 mm")),
    Sketcher.Constraint("DistanceY", -1, 1, 0, 3, Q("28 mm")),
])
sketch8.setExpression("Constraints[6]", "Params.sketch8_diameter")
pocket6 = body.newObject("PartDesign::Pocket", "Pocket005")
pocket6.Profile = sketch8
pocket6.setExpression("Length", "Params.pocket6_length")

# Sketch on XZ plane
sketch9 = body.newObject("Sketcher::SketchObject", "Sketch008")
sketch9.AttachmentSupport = (doc.getObject("XZ_Plane"), [""])
sketch9.MapMode = "FlatFace"
sketch9.AttachmentOffset = App.Placement(Vector(0, 0, -1.5), App.Rotation())
sketch9.addGeometry([
    Part.Circle(Vector(-22.5, -23, 0), Vector(0, 0, 1), 3.5),  # 0
    Part.Circle(Vector(-22.5, -23, 0), Vector(0, 0, 1), 1.2),  # 1
    Part.Circle(Vector(-40, 0, 0), Vector(0, 0, 1), 3.5),  # 2
    Part.Circle(Vector(-40, 0, 0), Vector(0, 0, 1), 1.2),  # 3
    Part.Circle(Vector(-35, -20, 0), Vector(0, 0, 1), 2.1),  # 4
    Part.Circle(Vector(35, -20, 0), Vector(0, 0, 1), 2.1),  # 5
    Part.Circle(Vector(40, 0, 0), Vector(0, 0, 1), 3.5),  # 6
    Part.Circle(Vector(40, 0, 0), Vector(0, 0, 1), 1.2),  # 7
    Part.Circle(Vector(22.5, -23, 0), Vector(0, 0, 1), 3.5),  # 8
    Part.Circle(Vector(22.5, -23, 0), Vector(0, 0, 1), 1.2),  # 9
    Part.Circle(Vector(22.5, 23, 0), Vector(0, 0, 1), 3.5),  # 10
    Part.Circle(Vector(22.5, 23, 0), Vector(0, 0, 1), 1.2),  # 11
    Part.Circle(Vector(35, 20, 0), Vector(0, 0, 1), 2.1),  # 12
    Part.Circle(Vector(-35, 20, 0), Vector(0, 0, 1), 2.1),  # 13
    Part.Circle(Vector(-22.5, 23, 0), Vector(0, 0, 1), 3.5),  # 14
    Part.Circle(Vector(-22.5, 23, 0), Vector(0, 0, 1), 1.2),  # 15
], False)
sketch9.addConstraint([
    Sketcher.Constraint("Coincident", 1, 3, 0, 3),
    Sketcher.Constraint("Coincident", 3, 3, 2, 3),
    Sketcher.Constraint("Coincident", 7, 3, 6, 3),
    Sketcher.Constraint("Coincident", 9, 3, 8, 3),
    Sketcher.Constraint("Coincident", 11, 3, 10, 3),
    Sketcher.Constraint("Coincident", 15, 3, 14, 3),
    Sketcher.Constraint("Equal", 0, 2),
    Sketcher.Constraint("Equal", 1, 3),
    Sketcher.Constraint("Equal", 4, 5),
    Sketcher.Constraint("Equal", 2, 6),
    Sketcher.Constraint("Equal", 3, 7),
    Sketcher.Constraint("Equal", 6, 8),
    Sketcher.Constraint("Equal", 7, 9),
    Sketcher.Constraint("Equal", 8, 10),
    Sketcher.Constraint("Equal", 9, 11),
    Sketcher.Constraint("Equal", 5, 12),
    Sketcher.Constraint("Equal", 12, 13),
    Sketcher.Constraint("Equal", 10, 14),
    Sketcher.Constraint("Equal", 11, 15),
    Sketcher.Constraint("Symmetric", 2, 3, 6, 3, -1, 1),
    Sketcher.Constraint("Symmetric", 0, 3, 10, 3, -1, 1),
    Sketcher.Constraint("Symmetric", 4, 3, 12, 3, -1, 1),
    Sketcher.Constraint("Symmetric", 5, 3, 13, 3, -1, 1),
    Sketcher.Constraint("Symmetric", 8, 3, 14, 3, -1, 1),
    Sketcher.Constraint("Symmetric", 4, 3, 5, 3, -2),
    Sketcher.Constraint("Symmetric", 0, 3, 8, 3, -2),
    Sketcher.Constraint("PointOnObject", 2, 3, -1),
    Sketcher.Constraint("Diameter", 0, Q("7 mm")),
    Sketcher.Constraint("Diameter", 1, Q("2.5 mm")),
    Sketcher.Constraint("Diameter", 4, Q("4.2 mm")),
    Sketcher.Constraint("DistanceY", 0, 3, -1, 1, Q("23 mm")),
    Sketcher.Constraint("DistanceX", 2, 3, -1, 1, Q("40 mm")),
    Sketcher.Constraint("DistanceX", 4, 3, -1, 1, Q("35 mm")),
    Sketcher.Constraint("DistanceY", 4, 3, -1, 1, Q("20 mm")),
    Sketcher.Constraint("DistanceX", 0, 3, 8, 3, Q("45 mm")),
])
sketch9.setExpression("Constraints[27]", "Params.sketch9_diameter")
sketch9.setExpression("Constraints[28]", "Params.sketch9_diameter2")
sketch9.setExpression("Constraints[29]", "Params.sketch9_diameter3")
pad3 = body.newObject("PartDesign::Pad", "Pad002")
pad3.Profile = sketch9
pad3.setExpression("Length", "Params.pad3_length")
pad3.Reversed = True

# Sketch on YZ plane
sketch10 = body.newObject("Sketcher::SketchObject", "Sketch009")
sketch10.AttachmentSupport = (doc.getObject("YZ_Plane"), [""])
sketch10.MapMode = "FlatFace"
sketch10.AttachmentOffset = App.Placement(Vector(0, 0, 49.5), App.Rotation())
sketch10.addGeometry(Part.Circle(Vector(22, 0, 0), Vector(0, 0, 1), 8), False)
sketch10.addConstraint([
    Sketcher.Constraint("PointOnObject", 0, 3, -1),
    Sketcher.Constraint("Diameter", 0, Q("16 mm")),
    Sketcher.Constraint("DistanceX", -1, 1, 0, 3, Q("22 mm")),
])
sketch10.setExpression("Constraints[1]", "Params.sketch10_diameter")
pocket7 = body.newObject("PartDesign::Pocket", "Pocket006")
pocket7.Profile = sketch10
pocket7.Type = "UpToFirst"

doc.recompute()
